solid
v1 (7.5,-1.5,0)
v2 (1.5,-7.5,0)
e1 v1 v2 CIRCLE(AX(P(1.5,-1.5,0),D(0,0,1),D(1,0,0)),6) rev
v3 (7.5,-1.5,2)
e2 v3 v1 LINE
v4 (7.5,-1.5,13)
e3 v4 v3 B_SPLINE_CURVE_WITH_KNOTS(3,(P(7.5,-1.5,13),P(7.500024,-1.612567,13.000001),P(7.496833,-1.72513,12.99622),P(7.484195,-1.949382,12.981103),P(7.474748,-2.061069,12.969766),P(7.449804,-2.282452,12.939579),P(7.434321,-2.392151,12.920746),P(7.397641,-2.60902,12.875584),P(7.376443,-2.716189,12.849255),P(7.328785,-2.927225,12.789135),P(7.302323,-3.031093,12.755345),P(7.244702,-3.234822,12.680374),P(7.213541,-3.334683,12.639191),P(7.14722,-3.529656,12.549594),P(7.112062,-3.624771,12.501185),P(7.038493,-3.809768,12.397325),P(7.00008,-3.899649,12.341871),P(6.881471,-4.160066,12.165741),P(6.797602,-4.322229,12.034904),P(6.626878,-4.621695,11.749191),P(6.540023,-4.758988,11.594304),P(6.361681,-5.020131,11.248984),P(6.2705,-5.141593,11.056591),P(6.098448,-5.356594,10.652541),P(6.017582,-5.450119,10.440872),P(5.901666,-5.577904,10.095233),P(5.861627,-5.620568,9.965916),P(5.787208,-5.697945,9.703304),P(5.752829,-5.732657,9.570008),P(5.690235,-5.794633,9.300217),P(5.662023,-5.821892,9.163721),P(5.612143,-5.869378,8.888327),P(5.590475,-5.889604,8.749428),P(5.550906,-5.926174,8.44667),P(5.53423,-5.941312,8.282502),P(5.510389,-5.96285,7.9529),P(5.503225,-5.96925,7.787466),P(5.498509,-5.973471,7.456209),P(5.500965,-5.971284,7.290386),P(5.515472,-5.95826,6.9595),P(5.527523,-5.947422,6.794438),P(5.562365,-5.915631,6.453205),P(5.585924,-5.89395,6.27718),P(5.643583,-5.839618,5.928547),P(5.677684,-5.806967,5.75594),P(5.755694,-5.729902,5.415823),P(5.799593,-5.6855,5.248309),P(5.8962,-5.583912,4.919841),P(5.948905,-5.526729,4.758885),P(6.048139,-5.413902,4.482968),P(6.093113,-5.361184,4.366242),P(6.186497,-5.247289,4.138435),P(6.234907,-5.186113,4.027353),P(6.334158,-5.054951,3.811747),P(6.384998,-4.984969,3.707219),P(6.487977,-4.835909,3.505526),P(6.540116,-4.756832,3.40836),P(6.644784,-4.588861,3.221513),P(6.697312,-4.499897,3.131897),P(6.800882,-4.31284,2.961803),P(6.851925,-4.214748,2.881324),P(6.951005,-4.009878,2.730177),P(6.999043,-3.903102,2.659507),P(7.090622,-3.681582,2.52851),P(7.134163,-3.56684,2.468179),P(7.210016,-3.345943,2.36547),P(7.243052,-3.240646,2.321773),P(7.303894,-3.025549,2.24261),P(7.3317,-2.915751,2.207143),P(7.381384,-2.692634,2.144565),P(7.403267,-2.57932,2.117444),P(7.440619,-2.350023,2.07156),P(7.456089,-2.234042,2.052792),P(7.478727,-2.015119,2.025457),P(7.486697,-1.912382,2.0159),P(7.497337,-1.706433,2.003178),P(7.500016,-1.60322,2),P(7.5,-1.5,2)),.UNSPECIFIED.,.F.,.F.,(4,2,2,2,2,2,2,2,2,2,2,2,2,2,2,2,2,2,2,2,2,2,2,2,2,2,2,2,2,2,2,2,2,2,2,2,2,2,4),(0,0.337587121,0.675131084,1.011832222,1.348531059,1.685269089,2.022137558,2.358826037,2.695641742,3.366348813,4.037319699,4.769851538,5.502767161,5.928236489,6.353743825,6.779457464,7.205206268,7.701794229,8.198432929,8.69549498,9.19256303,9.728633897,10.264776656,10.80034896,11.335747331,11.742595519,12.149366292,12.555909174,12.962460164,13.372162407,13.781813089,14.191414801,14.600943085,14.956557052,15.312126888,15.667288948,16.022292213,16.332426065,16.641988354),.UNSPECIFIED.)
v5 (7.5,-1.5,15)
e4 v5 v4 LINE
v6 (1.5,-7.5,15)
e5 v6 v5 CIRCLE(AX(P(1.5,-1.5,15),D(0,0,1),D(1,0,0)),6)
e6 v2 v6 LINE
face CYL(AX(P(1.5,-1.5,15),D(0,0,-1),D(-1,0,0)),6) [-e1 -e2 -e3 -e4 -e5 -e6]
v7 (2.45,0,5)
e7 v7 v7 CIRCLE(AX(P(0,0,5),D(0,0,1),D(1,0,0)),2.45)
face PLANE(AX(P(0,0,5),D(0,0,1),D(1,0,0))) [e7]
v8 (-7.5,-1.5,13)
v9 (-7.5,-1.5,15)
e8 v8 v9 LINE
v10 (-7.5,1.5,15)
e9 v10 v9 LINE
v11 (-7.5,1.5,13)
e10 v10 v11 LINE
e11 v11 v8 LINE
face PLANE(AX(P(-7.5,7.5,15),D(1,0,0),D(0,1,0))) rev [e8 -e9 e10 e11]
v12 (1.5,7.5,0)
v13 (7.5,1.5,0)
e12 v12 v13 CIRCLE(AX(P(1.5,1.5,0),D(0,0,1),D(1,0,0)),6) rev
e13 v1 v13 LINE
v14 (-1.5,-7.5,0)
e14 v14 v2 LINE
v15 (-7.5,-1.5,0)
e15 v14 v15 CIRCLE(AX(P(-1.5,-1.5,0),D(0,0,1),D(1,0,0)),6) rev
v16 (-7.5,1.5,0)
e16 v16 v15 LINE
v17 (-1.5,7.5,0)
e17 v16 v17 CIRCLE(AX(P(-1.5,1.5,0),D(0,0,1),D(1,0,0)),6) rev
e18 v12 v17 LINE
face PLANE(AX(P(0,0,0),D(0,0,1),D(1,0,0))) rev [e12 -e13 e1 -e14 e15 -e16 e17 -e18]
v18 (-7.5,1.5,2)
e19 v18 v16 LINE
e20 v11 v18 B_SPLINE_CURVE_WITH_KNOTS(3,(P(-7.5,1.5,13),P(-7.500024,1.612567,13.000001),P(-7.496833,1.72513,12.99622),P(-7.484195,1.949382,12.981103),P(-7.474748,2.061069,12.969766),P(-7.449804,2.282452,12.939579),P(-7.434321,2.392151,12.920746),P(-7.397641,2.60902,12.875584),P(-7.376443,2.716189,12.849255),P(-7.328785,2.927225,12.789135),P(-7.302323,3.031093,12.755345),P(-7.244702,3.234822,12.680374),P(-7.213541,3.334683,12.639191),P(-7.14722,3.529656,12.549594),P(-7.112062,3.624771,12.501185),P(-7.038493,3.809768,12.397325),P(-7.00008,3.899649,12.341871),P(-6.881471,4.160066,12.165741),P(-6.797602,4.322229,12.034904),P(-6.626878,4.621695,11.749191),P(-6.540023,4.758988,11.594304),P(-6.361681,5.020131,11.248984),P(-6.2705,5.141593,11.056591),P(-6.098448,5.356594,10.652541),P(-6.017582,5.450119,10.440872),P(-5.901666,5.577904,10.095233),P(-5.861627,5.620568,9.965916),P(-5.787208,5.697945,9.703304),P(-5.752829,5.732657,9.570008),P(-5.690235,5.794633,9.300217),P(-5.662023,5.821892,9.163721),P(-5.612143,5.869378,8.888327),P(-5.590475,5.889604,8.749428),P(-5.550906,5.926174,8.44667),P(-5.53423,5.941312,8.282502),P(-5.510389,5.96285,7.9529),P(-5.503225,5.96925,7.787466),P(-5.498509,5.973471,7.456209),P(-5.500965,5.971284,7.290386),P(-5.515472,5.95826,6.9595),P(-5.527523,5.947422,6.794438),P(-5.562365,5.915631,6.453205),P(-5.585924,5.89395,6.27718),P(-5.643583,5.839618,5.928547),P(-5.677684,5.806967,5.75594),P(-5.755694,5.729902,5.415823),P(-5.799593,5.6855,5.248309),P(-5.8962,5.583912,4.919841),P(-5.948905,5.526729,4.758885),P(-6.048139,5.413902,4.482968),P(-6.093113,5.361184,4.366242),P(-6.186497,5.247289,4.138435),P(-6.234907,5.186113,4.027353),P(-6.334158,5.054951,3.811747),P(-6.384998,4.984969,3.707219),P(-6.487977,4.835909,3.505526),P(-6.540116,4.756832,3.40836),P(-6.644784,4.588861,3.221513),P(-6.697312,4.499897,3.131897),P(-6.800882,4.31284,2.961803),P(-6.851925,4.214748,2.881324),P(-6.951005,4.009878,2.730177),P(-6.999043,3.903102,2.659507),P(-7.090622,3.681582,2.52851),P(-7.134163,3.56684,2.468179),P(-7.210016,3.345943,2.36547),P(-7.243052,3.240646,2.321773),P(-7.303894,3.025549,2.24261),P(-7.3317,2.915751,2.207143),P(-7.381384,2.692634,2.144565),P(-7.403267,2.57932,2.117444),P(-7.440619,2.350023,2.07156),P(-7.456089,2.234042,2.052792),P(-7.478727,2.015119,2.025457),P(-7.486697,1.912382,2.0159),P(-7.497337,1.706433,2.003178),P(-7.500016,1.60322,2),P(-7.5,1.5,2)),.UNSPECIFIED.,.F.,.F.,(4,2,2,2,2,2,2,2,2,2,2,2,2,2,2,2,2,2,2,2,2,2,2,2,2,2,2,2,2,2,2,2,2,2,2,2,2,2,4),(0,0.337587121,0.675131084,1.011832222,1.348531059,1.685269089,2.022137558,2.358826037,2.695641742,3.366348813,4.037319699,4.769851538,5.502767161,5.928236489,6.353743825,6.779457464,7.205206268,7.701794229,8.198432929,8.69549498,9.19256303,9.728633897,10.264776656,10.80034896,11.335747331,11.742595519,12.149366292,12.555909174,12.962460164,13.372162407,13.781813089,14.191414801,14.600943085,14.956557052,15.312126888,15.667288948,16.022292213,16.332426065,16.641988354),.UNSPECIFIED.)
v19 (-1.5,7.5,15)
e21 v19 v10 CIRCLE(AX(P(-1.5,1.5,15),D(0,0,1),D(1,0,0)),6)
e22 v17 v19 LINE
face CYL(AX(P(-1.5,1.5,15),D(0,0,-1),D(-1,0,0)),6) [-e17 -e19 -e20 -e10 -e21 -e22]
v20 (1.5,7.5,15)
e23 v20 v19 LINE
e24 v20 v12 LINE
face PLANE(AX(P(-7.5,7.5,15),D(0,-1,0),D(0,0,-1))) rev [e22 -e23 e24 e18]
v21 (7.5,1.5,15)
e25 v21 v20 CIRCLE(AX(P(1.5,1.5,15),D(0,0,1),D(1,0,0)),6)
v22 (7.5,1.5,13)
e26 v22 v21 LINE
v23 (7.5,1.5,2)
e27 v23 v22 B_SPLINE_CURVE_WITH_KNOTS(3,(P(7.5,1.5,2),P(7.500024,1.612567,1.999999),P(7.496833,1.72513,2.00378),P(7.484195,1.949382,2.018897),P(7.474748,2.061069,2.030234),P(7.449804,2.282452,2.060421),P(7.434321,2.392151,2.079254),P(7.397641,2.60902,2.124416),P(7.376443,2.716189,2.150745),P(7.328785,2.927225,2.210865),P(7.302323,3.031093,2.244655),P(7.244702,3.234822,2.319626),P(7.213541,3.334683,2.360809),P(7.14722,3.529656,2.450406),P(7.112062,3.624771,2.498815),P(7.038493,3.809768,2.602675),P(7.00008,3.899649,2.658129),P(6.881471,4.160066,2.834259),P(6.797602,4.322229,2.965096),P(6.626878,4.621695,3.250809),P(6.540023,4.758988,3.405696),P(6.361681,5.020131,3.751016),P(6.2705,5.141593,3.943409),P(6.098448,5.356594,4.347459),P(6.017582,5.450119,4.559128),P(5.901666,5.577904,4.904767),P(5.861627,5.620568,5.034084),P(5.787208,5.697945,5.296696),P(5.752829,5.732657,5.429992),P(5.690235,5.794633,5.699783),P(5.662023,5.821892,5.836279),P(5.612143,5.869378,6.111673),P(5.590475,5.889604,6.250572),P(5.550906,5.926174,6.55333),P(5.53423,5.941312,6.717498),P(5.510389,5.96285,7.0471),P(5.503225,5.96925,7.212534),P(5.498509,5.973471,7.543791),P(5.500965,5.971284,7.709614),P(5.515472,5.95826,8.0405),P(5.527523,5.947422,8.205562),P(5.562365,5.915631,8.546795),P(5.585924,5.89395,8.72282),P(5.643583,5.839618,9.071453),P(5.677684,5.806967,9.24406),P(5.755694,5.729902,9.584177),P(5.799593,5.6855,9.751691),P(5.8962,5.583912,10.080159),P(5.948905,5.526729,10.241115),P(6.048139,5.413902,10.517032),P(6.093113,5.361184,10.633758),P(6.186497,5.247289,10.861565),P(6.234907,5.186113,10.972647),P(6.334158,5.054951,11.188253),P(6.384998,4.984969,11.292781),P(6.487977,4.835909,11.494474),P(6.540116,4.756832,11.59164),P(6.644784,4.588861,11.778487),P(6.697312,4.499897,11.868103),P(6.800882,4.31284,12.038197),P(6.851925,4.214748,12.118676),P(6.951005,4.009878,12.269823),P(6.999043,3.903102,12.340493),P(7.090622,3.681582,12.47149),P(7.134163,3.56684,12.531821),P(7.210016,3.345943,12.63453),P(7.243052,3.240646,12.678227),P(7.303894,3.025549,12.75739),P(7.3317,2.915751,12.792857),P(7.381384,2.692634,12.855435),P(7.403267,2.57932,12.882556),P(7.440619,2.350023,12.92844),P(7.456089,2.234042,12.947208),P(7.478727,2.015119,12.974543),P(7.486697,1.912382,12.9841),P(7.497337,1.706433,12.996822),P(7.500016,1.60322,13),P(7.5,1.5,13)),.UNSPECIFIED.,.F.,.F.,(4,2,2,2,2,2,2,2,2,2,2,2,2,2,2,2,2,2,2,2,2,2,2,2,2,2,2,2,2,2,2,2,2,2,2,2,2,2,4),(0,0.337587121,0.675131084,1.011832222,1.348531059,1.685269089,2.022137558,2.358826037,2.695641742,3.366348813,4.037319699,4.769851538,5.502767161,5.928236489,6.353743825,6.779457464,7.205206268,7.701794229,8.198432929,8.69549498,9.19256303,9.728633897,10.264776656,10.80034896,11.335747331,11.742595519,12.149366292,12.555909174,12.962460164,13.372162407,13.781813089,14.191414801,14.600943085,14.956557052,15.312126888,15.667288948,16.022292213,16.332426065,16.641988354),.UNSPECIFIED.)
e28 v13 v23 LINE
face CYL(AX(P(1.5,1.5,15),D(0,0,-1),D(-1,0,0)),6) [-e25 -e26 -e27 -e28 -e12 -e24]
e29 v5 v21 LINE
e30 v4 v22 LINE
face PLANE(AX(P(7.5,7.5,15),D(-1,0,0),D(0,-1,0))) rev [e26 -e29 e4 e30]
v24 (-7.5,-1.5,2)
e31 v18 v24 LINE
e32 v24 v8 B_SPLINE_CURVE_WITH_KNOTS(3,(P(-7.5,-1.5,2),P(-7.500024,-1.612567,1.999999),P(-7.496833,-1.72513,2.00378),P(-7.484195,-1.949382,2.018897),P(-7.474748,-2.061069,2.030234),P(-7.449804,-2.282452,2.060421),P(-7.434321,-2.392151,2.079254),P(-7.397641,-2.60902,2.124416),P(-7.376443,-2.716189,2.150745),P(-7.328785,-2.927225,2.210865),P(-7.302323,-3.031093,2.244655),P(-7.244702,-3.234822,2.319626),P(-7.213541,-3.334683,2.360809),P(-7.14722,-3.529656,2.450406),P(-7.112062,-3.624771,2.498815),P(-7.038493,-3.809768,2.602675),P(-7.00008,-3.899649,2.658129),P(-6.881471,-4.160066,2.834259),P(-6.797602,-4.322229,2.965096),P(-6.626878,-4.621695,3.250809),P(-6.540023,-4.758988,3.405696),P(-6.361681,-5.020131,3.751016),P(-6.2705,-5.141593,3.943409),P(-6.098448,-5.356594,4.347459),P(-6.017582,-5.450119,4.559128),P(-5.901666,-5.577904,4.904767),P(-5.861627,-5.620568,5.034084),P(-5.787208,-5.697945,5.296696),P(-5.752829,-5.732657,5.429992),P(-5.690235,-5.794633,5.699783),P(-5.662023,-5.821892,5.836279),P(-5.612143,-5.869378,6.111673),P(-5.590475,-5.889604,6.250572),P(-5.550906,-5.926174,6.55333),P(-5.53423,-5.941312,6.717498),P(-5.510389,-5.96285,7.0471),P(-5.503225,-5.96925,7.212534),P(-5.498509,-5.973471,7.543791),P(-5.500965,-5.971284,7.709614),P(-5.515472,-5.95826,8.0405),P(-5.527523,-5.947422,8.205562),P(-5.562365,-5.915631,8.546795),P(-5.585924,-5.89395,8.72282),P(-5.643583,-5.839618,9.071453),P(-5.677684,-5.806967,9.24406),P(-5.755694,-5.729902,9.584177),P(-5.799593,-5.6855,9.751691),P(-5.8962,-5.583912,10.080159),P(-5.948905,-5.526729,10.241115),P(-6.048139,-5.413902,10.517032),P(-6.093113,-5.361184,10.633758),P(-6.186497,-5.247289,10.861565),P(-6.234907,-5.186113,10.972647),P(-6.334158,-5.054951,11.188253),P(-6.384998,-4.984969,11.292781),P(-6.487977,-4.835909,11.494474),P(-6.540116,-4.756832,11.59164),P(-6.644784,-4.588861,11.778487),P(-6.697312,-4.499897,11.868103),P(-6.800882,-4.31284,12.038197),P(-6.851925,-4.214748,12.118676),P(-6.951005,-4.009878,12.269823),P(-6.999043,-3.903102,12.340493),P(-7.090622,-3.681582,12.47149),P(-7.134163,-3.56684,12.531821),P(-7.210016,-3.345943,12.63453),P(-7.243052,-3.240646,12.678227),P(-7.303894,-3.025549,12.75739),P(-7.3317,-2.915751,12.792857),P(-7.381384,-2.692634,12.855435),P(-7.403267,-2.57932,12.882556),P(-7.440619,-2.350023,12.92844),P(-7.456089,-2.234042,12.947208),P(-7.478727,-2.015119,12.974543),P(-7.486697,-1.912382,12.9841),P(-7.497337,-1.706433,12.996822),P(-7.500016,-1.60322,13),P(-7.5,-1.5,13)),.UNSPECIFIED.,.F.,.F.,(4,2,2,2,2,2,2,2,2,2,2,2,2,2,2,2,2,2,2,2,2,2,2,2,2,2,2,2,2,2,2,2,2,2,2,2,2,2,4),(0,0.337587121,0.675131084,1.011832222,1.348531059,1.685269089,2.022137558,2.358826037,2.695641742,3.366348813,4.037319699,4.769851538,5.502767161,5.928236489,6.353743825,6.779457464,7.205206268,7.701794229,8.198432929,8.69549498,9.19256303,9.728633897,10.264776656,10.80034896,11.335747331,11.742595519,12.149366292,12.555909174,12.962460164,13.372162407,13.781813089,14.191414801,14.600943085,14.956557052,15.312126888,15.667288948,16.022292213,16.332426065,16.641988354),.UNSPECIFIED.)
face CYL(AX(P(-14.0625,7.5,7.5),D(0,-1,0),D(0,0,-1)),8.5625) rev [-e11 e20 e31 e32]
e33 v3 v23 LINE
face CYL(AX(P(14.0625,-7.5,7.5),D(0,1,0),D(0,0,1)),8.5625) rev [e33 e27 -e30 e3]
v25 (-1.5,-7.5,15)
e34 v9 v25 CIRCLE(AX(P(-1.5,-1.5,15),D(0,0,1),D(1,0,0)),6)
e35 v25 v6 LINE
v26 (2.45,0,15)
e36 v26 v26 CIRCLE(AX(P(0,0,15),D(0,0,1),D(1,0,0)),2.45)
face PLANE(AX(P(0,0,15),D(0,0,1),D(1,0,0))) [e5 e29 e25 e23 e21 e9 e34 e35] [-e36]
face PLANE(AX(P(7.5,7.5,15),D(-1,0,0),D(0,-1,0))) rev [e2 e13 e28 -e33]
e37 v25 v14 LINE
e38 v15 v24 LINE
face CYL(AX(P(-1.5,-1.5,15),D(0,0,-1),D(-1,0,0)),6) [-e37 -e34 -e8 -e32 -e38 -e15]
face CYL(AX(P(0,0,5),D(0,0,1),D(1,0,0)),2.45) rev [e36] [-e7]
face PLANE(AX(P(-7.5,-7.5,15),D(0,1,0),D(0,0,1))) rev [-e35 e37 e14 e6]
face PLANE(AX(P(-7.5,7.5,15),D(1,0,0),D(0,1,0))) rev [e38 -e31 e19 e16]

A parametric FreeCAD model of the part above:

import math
import FreeCAD as App
import Part
import Sketcher

V = App.Vector
Q = App.Units.Quantity


def edges_at(feature, points):
    """Names of the edges that pass closest to the given points."""
    edges = feature.Shape.Edges
    near = lambda p: min(range(len(edges)), key=lambda i: edges[i].distToShape(Part.Vertex(*p))[0])
    return sorted({f"Edge{near(p) + 1}" for p in points})


def add_polygon(sketch, points):
    """Adds a closed chain of lines whose ends are joined by coincident constraints."""
    first, n = sketch.GeometryCount, len(points)
    for a, b in zip(points, points[1:] + points[:1]):
        sketch.addGeometry(Part.LineSegment(App.Vector(*a, 0), App.Vector(*b, 0)), False)
    for i in range(n):
        sketch.addConstraint(Sketcher.Constraint("Coincident", first + i, 2, first + (i + 1) % n, 1))

doc = App.newDocument("Part")
body = doc.addObject("PartDesign::Body", "Body")

sketch1 = body.newObject("Sketcher::SketchObject", "Sketch")
sketch1.AttachmentSupport = (doc.getObject("XY_Plane"), [""])
sketch1.MapMode = "FlatFace"
add_polygon(sketch1, [(-7.5, 7.5), (-7.5, -7.5), (7.5, -7.5), (7.5, 7.5)])
sketch1.addConstraint(Sketcher.Constraint("Vertical", 0))
sketch1.addConstraint(Sketcher.Constraint("Horizontal", 1))
sketch1.addConstraint(Sketcher.Constraint("Vertical", 2))
sketch1.addConstraint(Sketcher.Constraint("Horizontal", 3))
sketch1.addConstraint(Sketcher.Constraint("Symmetric", 0, 2, 2, 2, -1, 1))
sketch1.addConstraint(Sketcher.Constraint("Equal", 3, 0))
sketch1.addConstraint(Sketcher.Constraint("DistanceX", 1, 1, 1, 2, Q("15 mm")))
pad1 = body.newObject("PartDesign::Pad", "Pad")
pad1.Profile = sketch1
pad1.Length = 15

sketch2 = body.newObject("Sketcher::SketchObject", "Sketch001")
sketch2.AttachmentSupport = (doc.getObject("XY_Plane"), [""])
sketch2.MapMode = "FlatFace"
sketch2.AttachmentOffset = App.Placement(V(0, 0, 15), App.Rotation())
sketch2.addGeometry(Part.Circle(V(0, 0, 0), V(0, 0, 1), 2.45), False)
sketch2.addConstraint(Sketcher.Constraint("Coincident", 0, 3, -1, 1))
sketch2.addConstraint(Sketcher.Constraint("Diameter", 0, Q("4.9 mm")))
pocket1 = body.newObject("PartDesign::Pocket", "Pocket")
pocket1.Profile = sketch2
pocket1.Length = 10
doc.recompute()

fillet = body.newObject("PartDesign::Fillet", "Fillet")
fillet.Base = (pocket1, edges_at(pocket1, [
    (7.5, -7.5, 7.5),
    (-7.5, -7.5, 7.5),
    (-7.5, 7.5, 7.5),
    (7.5, 7.5, 7.5),
]))
fillet.Radius = 6

sketch3 = body.newObject("Sketcher::SketchObject", "Sketch002")
sketch3.AttachmentSupport = (doc.getObject("XZ_Plane"), [""])
sketch3.MapMode = "FlatFace"
sketch3.AttachmentOffset = App.Placement(V(0, 0, 7.5), App.Rotation())
sketch3.addGeometry(Part.LineSegment(V(-7.5, 13, 0), V(-7.5, 2, 0)), False)
sketch3.addGeometry(Part.ArcOfCircle(Part.Circle(V(-14.0625, 7.5, 0), V(0, 0, 1), 8.5625), math.radians(-39.966213), math.radians(39.966213)), False)
sketch3.addConstraint(Sketcher.Constraint("Coincident", 0, 1, 1, 2))
sketch3.addConstraint(Sketcher.Constraint("Coincident", 1, 1, 0, 2))
sketch3.addConstraint(Sketcher.Constraint("Vertical", 0))
sketch3.addConstraint(Sketcher.Constraint("DistanceY", 0, 2, 0, 1, Q("11 mm")))
sketch3.addConstraint(Sketcher.Constraint("DistanceY", -1, 1, 0, 1, Q("13 mm")))
sketch3.addConstraint(Sketcher.Constraint("DistanceX", 0, 1, -1, 1, Q("7.5 mm")))
sketch3.addConstraint(Sketcher.Constraint("Radius", 1, Q("8.5625 mm")))
pocket2 = body.newObject("PartDesign::Pocket", "Pocket001")
pocket2.Profile = sketch3
pocket2.Type = "ThroughAll"
doc.recompute()

datumline = body.newObject("PartDesign::Line", "DatumLine")
datumline.Placement = App.Placement(V(0, 0, 7.5), App.Rotation(V(0, 0, 1), V(0, 1, 0)))
polarpattern = body.newObject("PartDesign::PolarPattern", "PolarPattern")
polarpattern.Originals = [pocket2]
polarpattern.Axis = (datumline, [""])
polarpattern.Angle = 360
polarpattern.Occurrences = 2
body.Tip = polarpattern

doc.recompute()
